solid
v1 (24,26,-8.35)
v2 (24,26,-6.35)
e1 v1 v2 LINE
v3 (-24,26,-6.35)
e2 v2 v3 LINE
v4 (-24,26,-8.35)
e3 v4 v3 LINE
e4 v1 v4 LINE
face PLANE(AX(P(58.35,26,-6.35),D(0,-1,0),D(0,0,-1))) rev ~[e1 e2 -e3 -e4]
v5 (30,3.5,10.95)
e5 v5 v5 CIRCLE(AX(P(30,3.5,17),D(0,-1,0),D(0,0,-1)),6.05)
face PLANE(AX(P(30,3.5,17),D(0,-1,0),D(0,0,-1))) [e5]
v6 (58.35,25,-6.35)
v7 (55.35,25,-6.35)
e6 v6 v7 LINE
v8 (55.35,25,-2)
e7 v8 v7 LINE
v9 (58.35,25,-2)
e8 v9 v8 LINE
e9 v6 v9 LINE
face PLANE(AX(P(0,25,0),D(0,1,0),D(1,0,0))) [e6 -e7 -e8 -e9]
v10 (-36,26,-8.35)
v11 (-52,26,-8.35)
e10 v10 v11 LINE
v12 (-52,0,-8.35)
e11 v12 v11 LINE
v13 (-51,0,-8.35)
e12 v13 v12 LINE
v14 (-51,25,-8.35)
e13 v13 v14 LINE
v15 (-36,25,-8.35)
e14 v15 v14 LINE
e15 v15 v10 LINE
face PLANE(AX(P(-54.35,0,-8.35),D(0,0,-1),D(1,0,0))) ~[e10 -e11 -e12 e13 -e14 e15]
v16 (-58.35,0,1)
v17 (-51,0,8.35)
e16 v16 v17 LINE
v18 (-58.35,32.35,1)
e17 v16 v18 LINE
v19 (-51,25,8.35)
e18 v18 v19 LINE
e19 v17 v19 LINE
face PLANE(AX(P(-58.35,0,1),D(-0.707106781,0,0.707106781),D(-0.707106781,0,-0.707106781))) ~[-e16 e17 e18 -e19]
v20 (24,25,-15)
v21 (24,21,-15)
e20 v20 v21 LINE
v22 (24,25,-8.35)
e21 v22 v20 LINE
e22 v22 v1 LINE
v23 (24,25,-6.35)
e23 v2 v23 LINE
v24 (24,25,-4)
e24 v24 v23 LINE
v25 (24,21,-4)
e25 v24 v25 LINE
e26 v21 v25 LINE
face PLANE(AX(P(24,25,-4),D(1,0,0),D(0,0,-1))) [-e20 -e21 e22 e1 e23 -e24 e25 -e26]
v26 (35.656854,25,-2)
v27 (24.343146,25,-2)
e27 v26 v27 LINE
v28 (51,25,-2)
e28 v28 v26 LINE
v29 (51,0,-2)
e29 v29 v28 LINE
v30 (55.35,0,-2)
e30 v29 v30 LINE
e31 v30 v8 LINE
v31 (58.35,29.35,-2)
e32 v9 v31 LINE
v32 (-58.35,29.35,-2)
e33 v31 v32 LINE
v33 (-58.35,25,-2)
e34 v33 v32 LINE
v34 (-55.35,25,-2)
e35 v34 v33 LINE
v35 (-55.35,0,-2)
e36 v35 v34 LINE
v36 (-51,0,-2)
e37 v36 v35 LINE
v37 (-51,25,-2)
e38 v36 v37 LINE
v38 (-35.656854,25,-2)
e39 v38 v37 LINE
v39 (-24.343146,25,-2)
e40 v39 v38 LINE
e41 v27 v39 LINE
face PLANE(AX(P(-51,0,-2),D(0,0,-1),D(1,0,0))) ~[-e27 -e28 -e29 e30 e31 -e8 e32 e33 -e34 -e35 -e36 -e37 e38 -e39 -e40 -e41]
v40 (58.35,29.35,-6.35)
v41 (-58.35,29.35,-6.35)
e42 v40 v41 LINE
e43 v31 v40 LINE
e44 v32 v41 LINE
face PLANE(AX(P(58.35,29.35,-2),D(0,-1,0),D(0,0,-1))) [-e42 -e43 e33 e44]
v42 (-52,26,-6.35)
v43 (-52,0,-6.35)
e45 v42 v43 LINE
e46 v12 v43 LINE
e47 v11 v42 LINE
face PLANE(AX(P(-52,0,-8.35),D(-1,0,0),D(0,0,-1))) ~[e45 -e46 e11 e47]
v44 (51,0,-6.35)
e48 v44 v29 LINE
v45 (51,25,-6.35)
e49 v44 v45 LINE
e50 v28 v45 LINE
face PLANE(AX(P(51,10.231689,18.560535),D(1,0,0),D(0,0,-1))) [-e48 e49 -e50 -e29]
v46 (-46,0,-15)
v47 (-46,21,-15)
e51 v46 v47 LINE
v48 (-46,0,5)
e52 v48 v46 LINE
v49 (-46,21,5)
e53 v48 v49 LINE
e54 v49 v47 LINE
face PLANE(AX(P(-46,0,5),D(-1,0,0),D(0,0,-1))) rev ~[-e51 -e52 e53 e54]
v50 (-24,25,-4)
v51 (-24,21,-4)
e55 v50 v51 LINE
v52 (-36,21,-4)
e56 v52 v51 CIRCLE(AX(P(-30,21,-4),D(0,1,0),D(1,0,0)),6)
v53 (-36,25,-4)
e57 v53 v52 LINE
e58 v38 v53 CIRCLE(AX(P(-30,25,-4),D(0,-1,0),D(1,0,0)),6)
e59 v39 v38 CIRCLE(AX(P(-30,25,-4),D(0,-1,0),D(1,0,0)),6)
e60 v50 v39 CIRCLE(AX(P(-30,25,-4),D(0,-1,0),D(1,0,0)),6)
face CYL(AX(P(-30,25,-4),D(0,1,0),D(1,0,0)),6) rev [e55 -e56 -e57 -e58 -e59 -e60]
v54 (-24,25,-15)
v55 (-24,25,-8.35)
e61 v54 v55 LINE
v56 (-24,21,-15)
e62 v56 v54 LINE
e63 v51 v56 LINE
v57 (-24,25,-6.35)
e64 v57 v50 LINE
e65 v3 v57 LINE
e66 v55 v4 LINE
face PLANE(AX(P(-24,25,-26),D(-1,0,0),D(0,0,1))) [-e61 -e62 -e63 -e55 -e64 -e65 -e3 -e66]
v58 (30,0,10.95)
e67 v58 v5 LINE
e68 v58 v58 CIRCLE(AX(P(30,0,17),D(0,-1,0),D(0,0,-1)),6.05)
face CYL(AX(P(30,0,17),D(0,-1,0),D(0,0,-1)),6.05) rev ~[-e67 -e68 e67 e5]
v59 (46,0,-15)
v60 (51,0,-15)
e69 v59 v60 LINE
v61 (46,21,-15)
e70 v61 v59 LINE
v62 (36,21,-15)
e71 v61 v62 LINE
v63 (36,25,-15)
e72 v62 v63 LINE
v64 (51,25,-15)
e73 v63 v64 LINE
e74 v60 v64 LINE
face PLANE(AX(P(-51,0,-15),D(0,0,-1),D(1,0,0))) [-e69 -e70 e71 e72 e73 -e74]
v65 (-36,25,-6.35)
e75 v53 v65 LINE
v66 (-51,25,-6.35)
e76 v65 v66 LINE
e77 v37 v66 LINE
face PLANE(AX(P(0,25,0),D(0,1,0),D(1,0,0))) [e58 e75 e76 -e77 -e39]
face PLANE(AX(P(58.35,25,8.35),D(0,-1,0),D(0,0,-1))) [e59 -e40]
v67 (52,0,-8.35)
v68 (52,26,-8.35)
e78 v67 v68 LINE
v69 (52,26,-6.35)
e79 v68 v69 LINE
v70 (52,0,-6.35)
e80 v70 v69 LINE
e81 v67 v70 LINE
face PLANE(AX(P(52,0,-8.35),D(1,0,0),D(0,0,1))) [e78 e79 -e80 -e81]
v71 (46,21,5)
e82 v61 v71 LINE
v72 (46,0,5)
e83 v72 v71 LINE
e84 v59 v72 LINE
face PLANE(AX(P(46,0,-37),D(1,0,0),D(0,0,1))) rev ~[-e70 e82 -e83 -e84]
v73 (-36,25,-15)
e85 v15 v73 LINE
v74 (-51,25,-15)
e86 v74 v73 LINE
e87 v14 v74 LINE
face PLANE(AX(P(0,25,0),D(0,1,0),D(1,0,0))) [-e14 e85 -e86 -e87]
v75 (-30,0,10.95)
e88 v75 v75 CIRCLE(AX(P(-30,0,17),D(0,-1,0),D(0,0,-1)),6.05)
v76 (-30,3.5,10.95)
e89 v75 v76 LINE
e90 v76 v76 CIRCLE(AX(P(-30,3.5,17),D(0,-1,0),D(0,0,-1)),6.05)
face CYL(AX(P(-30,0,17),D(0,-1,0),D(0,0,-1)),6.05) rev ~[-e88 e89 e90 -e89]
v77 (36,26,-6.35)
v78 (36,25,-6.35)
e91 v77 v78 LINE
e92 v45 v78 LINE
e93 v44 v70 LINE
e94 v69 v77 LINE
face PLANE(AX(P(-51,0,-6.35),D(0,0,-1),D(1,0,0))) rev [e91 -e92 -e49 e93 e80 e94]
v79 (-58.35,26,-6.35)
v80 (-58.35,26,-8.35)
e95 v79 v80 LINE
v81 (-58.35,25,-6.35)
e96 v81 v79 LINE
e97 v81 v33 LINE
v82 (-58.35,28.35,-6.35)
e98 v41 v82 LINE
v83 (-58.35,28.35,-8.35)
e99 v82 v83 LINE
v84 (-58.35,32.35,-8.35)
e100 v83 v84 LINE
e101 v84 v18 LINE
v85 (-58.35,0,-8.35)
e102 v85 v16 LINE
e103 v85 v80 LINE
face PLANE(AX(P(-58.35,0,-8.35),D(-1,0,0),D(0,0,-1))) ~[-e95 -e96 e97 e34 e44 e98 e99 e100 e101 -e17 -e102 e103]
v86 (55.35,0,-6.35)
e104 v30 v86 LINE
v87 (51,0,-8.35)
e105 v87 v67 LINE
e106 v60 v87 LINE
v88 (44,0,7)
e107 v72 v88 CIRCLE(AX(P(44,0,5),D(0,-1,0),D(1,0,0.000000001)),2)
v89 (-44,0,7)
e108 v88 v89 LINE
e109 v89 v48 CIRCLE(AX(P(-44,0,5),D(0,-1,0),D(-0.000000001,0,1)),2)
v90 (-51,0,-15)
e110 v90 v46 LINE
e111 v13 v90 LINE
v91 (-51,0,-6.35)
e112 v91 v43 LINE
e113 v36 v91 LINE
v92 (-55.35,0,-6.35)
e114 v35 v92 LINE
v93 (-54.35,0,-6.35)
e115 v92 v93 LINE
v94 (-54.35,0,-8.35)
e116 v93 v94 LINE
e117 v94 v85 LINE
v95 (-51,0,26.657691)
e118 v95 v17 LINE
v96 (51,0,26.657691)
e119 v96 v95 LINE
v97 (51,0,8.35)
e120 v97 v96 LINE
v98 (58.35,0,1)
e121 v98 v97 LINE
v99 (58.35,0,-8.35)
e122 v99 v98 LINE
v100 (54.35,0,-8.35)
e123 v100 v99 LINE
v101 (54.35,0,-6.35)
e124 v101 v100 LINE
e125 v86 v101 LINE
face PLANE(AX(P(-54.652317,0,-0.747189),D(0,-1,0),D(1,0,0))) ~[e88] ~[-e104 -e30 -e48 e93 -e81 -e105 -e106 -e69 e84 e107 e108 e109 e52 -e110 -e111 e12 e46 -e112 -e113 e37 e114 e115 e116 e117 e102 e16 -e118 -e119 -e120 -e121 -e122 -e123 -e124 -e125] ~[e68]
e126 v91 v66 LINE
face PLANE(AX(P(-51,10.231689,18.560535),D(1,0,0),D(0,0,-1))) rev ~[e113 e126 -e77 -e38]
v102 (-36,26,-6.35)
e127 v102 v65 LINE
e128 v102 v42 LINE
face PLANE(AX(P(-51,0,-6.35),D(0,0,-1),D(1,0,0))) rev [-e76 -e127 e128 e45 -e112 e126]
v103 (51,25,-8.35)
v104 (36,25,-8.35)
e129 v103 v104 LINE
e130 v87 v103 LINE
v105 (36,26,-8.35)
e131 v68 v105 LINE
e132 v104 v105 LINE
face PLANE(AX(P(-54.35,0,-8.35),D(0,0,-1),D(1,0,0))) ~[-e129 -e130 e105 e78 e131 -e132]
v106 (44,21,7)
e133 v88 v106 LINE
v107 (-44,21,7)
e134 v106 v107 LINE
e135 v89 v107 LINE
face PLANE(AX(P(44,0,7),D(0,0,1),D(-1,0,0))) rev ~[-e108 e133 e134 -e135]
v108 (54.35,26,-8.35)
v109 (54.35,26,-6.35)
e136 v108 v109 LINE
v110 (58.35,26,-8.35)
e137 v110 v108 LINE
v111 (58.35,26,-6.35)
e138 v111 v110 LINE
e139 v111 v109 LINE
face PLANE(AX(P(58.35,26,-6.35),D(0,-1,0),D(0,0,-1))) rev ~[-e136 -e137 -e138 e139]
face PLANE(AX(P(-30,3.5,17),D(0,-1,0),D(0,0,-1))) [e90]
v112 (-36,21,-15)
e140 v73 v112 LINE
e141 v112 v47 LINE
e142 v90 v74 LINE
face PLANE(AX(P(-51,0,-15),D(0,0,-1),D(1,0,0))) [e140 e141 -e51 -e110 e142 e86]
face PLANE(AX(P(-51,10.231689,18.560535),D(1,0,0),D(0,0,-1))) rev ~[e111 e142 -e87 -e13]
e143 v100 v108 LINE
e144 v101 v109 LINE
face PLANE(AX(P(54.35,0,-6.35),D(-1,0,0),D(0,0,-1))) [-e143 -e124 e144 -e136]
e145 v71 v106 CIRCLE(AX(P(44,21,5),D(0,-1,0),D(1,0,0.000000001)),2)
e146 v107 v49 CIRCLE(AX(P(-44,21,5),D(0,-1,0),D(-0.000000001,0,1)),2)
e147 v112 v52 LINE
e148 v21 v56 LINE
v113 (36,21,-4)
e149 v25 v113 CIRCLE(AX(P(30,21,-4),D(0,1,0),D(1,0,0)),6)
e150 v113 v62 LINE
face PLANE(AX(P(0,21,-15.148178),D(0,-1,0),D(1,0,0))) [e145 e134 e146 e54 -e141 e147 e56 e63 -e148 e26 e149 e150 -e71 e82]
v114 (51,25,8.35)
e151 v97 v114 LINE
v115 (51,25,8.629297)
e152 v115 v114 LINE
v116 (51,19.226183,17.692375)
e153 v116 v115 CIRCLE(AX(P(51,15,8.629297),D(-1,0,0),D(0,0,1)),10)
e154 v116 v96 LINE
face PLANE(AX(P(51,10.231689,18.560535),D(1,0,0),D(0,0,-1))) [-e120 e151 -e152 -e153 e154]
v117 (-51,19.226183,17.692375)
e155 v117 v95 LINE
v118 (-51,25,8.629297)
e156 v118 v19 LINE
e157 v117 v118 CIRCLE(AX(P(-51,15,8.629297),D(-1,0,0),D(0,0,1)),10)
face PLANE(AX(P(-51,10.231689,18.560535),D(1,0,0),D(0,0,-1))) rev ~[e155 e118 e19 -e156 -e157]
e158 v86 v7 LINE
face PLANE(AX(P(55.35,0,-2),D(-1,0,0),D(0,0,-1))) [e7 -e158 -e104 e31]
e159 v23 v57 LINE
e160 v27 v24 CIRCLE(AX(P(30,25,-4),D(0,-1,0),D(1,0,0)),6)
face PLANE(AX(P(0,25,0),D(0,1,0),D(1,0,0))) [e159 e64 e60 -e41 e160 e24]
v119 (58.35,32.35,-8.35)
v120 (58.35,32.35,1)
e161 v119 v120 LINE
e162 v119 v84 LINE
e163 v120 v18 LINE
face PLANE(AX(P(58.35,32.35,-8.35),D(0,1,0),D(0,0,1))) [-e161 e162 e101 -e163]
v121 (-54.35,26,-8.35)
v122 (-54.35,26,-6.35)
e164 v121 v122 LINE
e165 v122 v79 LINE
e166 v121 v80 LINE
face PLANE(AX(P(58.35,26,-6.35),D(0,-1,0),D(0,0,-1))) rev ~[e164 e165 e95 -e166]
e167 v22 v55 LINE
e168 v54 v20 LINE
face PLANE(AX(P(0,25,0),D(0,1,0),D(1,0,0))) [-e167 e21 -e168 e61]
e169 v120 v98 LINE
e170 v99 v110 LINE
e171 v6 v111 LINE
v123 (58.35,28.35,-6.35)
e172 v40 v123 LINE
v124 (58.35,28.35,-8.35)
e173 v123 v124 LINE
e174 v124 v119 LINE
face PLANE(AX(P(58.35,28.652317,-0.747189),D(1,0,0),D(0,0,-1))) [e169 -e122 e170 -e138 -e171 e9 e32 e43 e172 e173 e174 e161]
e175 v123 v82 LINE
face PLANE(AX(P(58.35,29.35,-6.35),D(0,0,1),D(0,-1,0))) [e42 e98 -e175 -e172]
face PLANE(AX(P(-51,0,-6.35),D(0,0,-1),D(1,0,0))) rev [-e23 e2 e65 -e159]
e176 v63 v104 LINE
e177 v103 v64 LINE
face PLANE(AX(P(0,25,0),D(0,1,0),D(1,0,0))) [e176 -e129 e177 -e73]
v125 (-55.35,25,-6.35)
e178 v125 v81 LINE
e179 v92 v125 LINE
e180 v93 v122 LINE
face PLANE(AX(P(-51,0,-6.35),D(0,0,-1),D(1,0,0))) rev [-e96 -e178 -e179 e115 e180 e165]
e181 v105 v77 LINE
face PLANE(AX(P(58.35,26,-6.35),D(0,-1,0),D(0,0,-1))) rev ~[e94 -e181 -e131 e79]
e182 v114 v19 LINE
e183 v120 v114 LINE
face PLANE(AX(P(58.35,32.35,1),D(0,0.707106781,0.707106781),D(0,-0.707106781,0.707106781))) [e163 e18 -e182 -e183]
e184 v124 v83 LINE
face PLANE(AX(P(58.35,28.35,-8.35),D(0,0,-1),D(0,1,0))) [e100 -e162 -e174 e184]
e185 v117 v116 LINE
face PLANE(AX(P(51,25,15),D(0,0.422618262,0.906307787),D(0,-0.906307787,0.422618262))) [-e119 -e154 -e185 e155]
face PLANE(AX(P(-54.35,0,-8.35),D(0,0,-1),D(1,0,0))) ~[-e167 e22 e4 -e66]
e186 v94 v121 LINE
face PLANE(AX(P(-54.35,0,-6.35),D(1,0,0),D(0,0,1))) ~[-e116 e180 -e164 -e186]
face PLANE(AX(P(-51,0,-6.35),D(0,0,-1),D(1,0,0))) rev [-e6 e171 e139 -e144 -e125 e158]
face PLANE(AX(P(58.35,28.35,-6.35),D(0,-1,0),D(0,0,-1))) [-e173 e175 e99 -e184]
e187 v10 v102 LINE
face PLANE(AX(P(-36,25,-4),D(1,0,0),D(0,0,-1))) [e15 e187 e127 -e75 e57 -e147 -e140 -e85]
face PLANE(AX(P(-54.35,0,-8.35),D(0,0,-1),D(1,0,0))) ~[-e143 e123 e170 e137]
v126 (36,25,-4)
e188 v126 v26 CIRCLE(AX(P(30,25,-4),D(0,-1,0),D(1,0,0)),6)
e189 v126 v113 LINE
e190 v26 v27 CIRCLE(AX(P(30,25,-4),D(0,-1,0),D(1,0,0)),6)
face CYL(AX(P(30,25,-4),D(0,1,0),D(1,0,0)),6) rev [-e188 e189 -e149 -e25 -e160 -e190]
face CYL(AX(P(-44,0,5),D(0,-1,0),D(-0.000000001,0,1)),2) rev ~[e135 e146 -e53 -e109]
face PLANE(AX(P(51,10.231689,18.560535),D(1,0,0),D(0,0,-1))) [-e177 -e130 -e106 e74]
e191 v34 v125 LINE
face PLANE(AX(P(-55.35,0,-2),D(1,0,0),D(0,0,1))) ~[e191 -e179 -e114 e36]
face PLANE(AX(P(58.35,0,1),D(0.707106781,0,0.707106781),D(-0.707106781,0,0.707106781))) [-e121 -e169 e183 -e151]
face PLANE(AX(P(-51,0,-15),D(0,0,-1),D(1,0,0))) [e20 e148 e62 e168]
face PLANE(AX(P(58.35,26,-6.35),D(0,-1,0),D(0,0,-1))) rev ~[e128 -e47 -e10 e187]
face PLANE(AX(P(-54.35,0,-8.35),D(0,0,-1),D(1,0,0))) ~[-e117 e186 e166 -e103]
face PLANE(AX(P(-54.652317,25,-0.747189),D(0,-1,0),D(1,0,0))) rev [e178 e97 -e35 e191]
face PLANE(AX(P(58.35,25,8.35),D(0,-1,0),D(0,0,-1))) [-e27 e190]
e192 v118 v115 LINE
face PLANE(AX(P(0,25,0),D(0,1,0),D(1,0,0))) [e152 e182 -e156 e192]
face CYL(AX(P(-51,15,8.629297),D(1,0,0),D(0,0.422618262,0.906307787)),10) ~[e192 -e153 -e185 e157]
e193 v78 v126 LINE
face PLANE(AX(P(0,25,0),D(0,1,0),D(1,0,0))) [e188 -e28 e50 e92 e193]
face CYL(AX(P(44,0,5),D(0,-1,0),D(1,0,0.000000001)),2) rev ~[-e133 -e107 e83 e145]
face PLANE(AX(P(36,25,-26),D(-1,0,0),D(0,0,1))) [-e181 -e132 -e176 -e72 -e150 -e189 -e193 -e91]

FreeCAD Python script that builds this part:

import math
import FreeCAD as App
import Part
import Sketcher
from FreeCAD import Vector
Q = App.Units.Quantity


def edges_at(feature, points):
    """Names of the edges that pass closest to the given points."""
    edges = feature.Shape.Edges
    near = lambda p: min(range(len(edges)), key=lambda i: edges[i].distToShape(Part.Vertex(*p))[0])
    return sorted({f"Edge{near(p) + 1}" for p in points})

doc = App.newDocument("Part")
body = doc.addObject("PartDesign::Body", "Body")

# Sketch on XZ plane
sketch1 = body.newObject("Sketcher::SketchObject", "Sketch")
sketch1.AttachmentSupport = (doc.getObject("XZ_Plane"), [""])
sketch1.MapMode = "FlatFace"
sketch1.addGeometry(Part.LineSegment(Vector(-51, -15, 0), Vector(-51, 15, 0)), False)
sketch1.addGeometry(Part.LineSegment(Vector(-51, 15, 0), Vector(51, 15, 0)), False)
sketch1.addGeometry(Part.LineSegment(Vector(51, 15, 0), Vector(51, -15, 0)), False)
sketch1.addGeometry(Part.LineSegment(Vector(51, -15, 0), Vector(-51, -15, 0)), False)
sketch1.addConstraint(Sketcher.Constraint("Coincident", 0, 2, 1, 1))
sketch1.addConstraint(Sketcher.Constraint("Coincident", 1, 2, 2, 1))
sketch1.addConstraint(Sketcher.Constraint("Coincident", 2, 2, 3, 1))
sketch1.addConstraint(Sketcher.Constraint("Coincident", 3, 2, 0, 1))
sketch1.addConstraint(Sketcher.Constraint("Vertical", 0))
sketch1.addConstraint(Sketcher.Constraint("Horizontal", 1))
sketch1.addConstraint(Sketcher.Constraint("Vertical", 2))
sketch1.addConstraint(Sketcher.Constraint("Horizontal", 3))
sketch1.addConstraint(Sketcher.Constraint("Symmetric", 0, 2, 2, 2, -1, 1))
sketch1.addConstraint(Sketcher.Constraint("DistanceX", 1, 1, 1, 2, Q("102 mm")))
sketch1.addConstraint(Sketcher.Constraint("DistanceY", 0, 1, 0, 2, Q("30 mm")))
pad1 = body.newObject("PartDesign::Pad", "Pad")
pad1.Profile = sketch1
pad1.Length = 25
pad1.Reversed = True

# Sketch on XZ plane
sketch2 = body.newObject("Sketcher::SketchObject", "Sketch001")
sketch2.AttachmentSupport = (doc.getObject("XZ_Plane"), [""])
sketch2.MapMode = "FlatFace"
sketch2.addGeometry(Part.LineSegment(Vector(-46, -37, 0), Vector(46, -37, 0)), False)
sketch2.addGeometry(Part.LineSegment(Vector(46, -37, 0), Vector(46, 5, 0)), False)
sketch2.addGeometry(Part.ArcOfCircle(Part.Circle(Vector(44, 5, 0), Vector(0, 0, 1), 2), math.radians(0), math.radians(90)), False)
sketch2.addGeometry(Part.LineSegment(Vector(44, 7, 0), Vector(-44, 7, 0)), False)
sketch2.addGeometry(Part.ArcOfCircle(Part.Circle(Vector(-44, 5, 0), Vector(0, 0, 1), 2), math.radians(90), math.radians(180)), False)
sketch2.addGeometry(Part.LineSegment(Vector(-46, 5, 0), Vector(-46, -37, 0)), False)
sketch2.addConstraint(Sketcher.Constraint("Coincident", 0, 2, 1, 1))
sketch2.addConstraint(Sketcher.Constraint("Tangent", 1, 2, 2, 1))
sketch2.addConstraint(Sketcher.Constraint("Tangent", 2, 2, 3, 1))
sketch2.addConstraint(Sketcher.Constraint("Tangent", 3, 2, 4, 1))
sketch2.addConstraint(Sketcher.Constraint("Tangent", 4, 2, 5, 1))
sketch2.addConstraint(Sketcher.Constraint("Coincident", 5, 2, 0, 1))
sketch2.addConstraint(Sketcher.Constraint("Horizontal", 0))
sketch2.addConstraint(Sketcher.Constraint("Vertical", 1))
sketch2.addConstraint(Sketcher.Constraint("Horizontal", 3))
sketch2.addConstraint(Sketcher.Constraint("Vertical", 5))
sketch2.addConstraint(Sketcher.Constraint("Equal", 2, 4))
sketch2.addConstraint(Sketcher.Constraint("Radius", 2, Q("2 mm")))
sketch2.addConstraint(Sketcher.Constraint("DistanceX", 0, 1, 0, 2, Q("92 mm")))
sketch2.addConstraint(Sketcher.Constraint("DistanceY", 1, 1, 1, 2, Q("42 mm")))
sketch2.addConstraint(Sketcher.Constraint("DistanceX", -1, 1, 2, 3, Q("44 mm")))
sketch2.addConstraint(Sketcher.Constraint("DistanceY", -1, 1, 2, 3, Q("5 mm")))
pocket1 = body.newObject("PartDesign::Pocket", "Pocket")
pocket1.Profile = sketch2
pocket1.Length = 21

# Sketch on YZ plane
sketch3 = body.newObject("Sketcher::SketchObject", "Sketch002")
sketch3.AttachmentSupport = (doc.getObject("YZ_Plane"), [""])
sketch3.MapMode = "FlatFace"
sketch3.AttachmentOffset = App.Placement(Vector(0, 0, 51), App.Rotation())
sketch3.addGeometry(Part.LineSegment(Vector(25, 15, 0), Vector(0, 27, 0)), False)
sketch3.addGeometry(Part.LineSegment(Vector(0, 27, 0), Vector(0, 15, 0)), False)
sketch3.addGeometry(Part.LineSegment(Vector(0, 15, 0), Vector(25, 15, 0)), False)
sketch3.addConstraint(Sketcher.Constraint("Coincident", 0, 2, 1, 1))
sketch3.addConstraint(Sketcher.Constraint("Coincident", 1, 2, 2, 1))
sketch3.addConstraint(Sketcher.Constraint("Coincident", 2, 2, 0, 1))
sketch3.addConstraint(Sketcher.Constraint("Vertical", 1))
sketch3.addConstraint(Sketcher.Constraint("Horizontal", 2))
sketch3.addConstraint(Sketcher.Constraint("PointOnObject", 0, 2, -2))
sketch3.addConstraint(Sketcher.Constraint("DistanceX", 2, 1, 2, 2, Q("25 mm")))
sketch3.addConstraint(Sketcher.Constraint("Angle", 0, Q("155 deg")))
sketch3.addConstraint(Sketcher.Constraint("DistanceY", -1, 1, 1, 2, Q("15 mm")))
pad2 = body.newObject("PartDesign::Pad", "Pad001")
pad2.Profile = sketch3
pad2.Length = 102
pad2.Reversed = True

# Sketch on XZ plane
sketch4 = body.newObject("Sketcher::SketchObject", "Sketch003")
sketch4.AttachmentSupport = (doc.getObject("XZ_Plane"), [""])
sketch4.MapMode = "FlatFace"
sketch4.addGeometry(Part.Circle(Vector(-30, 17, 0), Vector(0, 0, 1), 6), False)
sketch4.addGeometry(Part.Circle(Vector(30, 17, 0), Vector(0, 0, 1), 6), False)
sketch4.addConstraint(Sketcher.Constraint("Equal", 0, 1))
sketch4.addConstraint(Sketcher.Constraint("Symmetric", 0, 3, 1, 3, -2))
sketch4.addConstraint(Sketcher.Constraint("Diameter", 0, Q("12.1 mm")))
sketch4.addConstraint(Sketcher.Constraint("DistanceX", 0, 3, -1, 1, Q("30 mm")))
sketch4.addConstraint(Sketcher.Constraint("DistanceY", -1, 1, 0, 3, Q("17 mm")))
pocket2 = body.newObject("PartDesign::Pocket", "Pocket001")
pocket2.Profile = sketch4
pocket2.Length = 3.5
doc.recompute()

fillet = body.newObject("PartDesign::Fillet", "Fillet")
fillet.Base = (pocket2, edges_at(pocket2, [(0, 25, 15)]))
fillet.Radius = 10

# Sketch on XZ plane
sketch5 = body.newObject("Sketcher::SketchObject", "Sketch004")
sketch5.AttachmentSupport = (doc.getObject("XZ_Plane"), [""])
sketch5.MapMode = "FlatFace"
sketch5.AttachmentOffset = App.Placement(Vector(0, 0, -25), App.Rotation())
sketch5.addGeometry(Part.LineSegment(Vector(-24, -4, 0), Vector(-24, -26, 0)), False)
sketch5.addGeometry(Part.ArcOfCircle(Part.Circle(Vector(-30, -26, 0), Vector(0, 0, 1), 6), math.radians(180), math.radians(360)), False)
sketch5.addGeometry(Part.LineSegment(Vector(-36, -26, 0), Vector(-36, -4, 0)), False)
sketch5.addGeometry(Part.ArcOfCircle(Part.Circle(Vector(-30, -4, 0), Vector(0, 0, 1), 6), math.radians(0), math.radians(180)), False)
sketch5.addGeometry(Part.LineSegment(Vector(24, -26, 0), Vector(24, -4, 0)), False)
sketch5.addGeometry(Part.ArcOfCircle(Part.Circle(Vector(30, -4, 0), Vector(0, 0, 1), 6), math.radians(0), math.radians(180)), False)
sketch5.addGeometry(Part.LineSegment(Vector(36, -4, 0), Vector(36, -26, 0)), False)
sketch5.addGeometry(Part.ArcOfCircle(Part.Circle(Vector(30, -26, 0), Vector(0, 0, 1), 6), math.radians(180), math.radians(360)), False)
sketch5.addConstraint(Sketcher.Constraint("Tangent", 0, 2, 1, 2))
sketch5.addConstraint(Sketcher.Constraint("Tangent", 1, 1, 2, 1))
sketch5.addConstraint(Sketcher.Constraint("Tangent", 2, 2, 3, 2))
sketch5.addConstraint(Sketcher.Constraint("Tangent", 3, 1, 0, 1))
sketch5.addConstraint(Sketcher.Constraint("Tangent", 4, 2, 5, 2))
sketch5.addConstraint(Sketcher.Constraint("Tangent", 5, 1, 6, 1))
sketch5.addConstraint(Sketcher.Constraint("Tangent", 6, 2, 7, 2))
sketch5.addConstraint(Sketcher.Constraint("Tangent", 7, 1, 4, 1))
sketch5.addConstraint(Sketcher.Constraint("Vertical", 0))
sketch5.addConstraint(Sketcher.Constraint("Vertical", 2))
sketch5.addConstraint(Sketcher.Constraint("Vertical", 4))
sketch5.addConstraint(Sketcher.Constraint("Vertical", 6))
sketch5.addConstraint(Sketcher.Constraint("Equal", 3, 5))
sketch5.addConstraint(Sketcher.Constraint("Symmetric", 3, 3, 5, 3, -2))
sketch5.addConstraint(Sketcher.Constraint("Horizontal", 1, 3, 7, 3))
sketch5.addConstraint(Sketcher.Constraint("Radius", 1, Q("6 mm")))
sketch5.addConstraint(Sketcher.Constraint("DistanceY", 0, 2, 0, 1, Q("22 mm")))
sketch5.addConstraint(Sketcher.Constraint("DistanceX", 1, 3, -1, 1, Q("30 mm")))
sketch5.addConstraint(Sketcher.Constraint("DistanceY", 1, 3, -1, 1, Q("26 mm")))
pocket3 = body.newObject("PartDesign::Pocket", "Pocket002")
pocket3.Profile = sketch5
pocket3.Length = 23.5
pocket3.Reversed = True

# Sketch on XZ plane
sketch6 = body.newObject("Sketcher::SketchObject", "Sketch005")
sketch6.AttachmentSupport = (doc.getObject("XZ_Plane"), [""])
sketch6.MapMode = "FlatFace"
sketch6.addGeometry(Part.LineSegment(Vector(51, -2, 0), Vector(55.4, -2, 0)), False)
sketch6.addGeometry(Part.LineSegment(Vector(55.4, -2, 0), Vector(55.4, -6.3, 0)), False)
sketch6.addGeometry(Part.LineSegment(Vector(55.4, -6.3, 0), Vector(54.4, -6.3, 0)), False)
sketch6.addGeometry(Part.LineSegment(Vector(54.4, -6.3, 0), Vector(54.4, -8.3, 0)), False)
sketch6.addGeometry(Part.LineSegment(Vector(54.4, -8.3, 0), Vector(58.4, -8.3, 0)), False)
sketch6.addGeometry(Part.LineSegment(Vector(58.4, -8.3, 0), Vector(58.4, 1, 0)), False)
sketch6.addGeometry(Part.LineSegment(Vector(58.4, 1, 0), Vector(51, 8.3, 0)), False)
sketch6.addGeometry(Part.LineSegment(Vector(51, 8.3, 0), Vector(51, -2, 0)), False)
sketch6.addGeometry(Part.LineSegment(Vector(51, -6.3, 0), Vector(51, -8.3, 0)), False)
sketch6.addGeometry(Part.LineSegment(Vector(51, -8.3, 0), Vector(52, -8.3, 0)), False)
sketch6.addGeometry(Part.LineSegment(Vector(52, -8.3, 0), Vector(52, -6.3, 0)), False)
sketch6.addGeometry(Part.LineSegment(Vector(52, -6.3, 0), Vector(51, -6.3, 0)), False)
sketch6.addConstraint(Sketcher.Constraint("Coincident", 0, 2, 1, 1))
sketch6.addConstraint(Sketcher.Constraint("Coincident", 1, 2, 2, 1))
sketch6.addConstraint(Sketcher.Constraint("Coincident", 2, 2, 3, 1))
sketch6.addConstraint(Sketcher.Constraint("Coincident", 3, 2, 4, 1))
sketch6.addConstraint(Sketcher.Constraint("Coincident", 4, 2, 5, 1))
sketch6.addConstraint(Sketcher.Constraint("Coincident", 5, 2, 6, 1))
sketch6.addConstraint(Sketcher.Constraint("Coincident", 6, 2, 7, 1))
sketch6.addConstraint(Sketcher.Constraint("Coincident", 7, 2, 0, 1))
sketch6.addConstraint(Sketcher.Constraint("Coincident", 8, 2, 9, 1))
sketch6.addConstraint(Sketcher.Constraint("Coincident", 9, 2, 10, 1))
sketch6.addConstraint(Sketcher.Constraint("Coincident", 10, 2, 11, 1))
sketch6.addConstraint(Sketcher.Constraint("Coincident", 11, 2, 8, 1))
sketch6.addConstraint(Sketcher.Constraint("Horizontal", 0))
sketch6.addConstraint(Sketcher.Constraint("Vertical", 1))
sketch6.addConstraint(Sketcher.Constraint("Horizontal", 2))
sketch6.addConstraint(Sketcher.Constraint("Vertical", 3))
sketch6.addConstraint(Sketcher.Constraint("Horizontal", 4))
sketch6.addConstraint(Sketcher.Constraint("Vertical", 5))
sketch6.addConstraint(Sketcher.Constraint("Vertical", 7))
sketch6.addConstraint(Sketcher.Constraint("Vertical", 8))
sketch6.addConstraint(Sketcher.Constraint("Horizontal", 9))
sketch6.addConstraint(Sketcher.Constraint("Vertical", 10))
sketch6.addConstraint(Sketcher.Constraint("Horizontal", 11))
sketch6.addConstraint(Sketcher.Constraint("Symmetric", 6, 2, 8, 2, -1))
sketch6.addConstraint(Sketcher.Constraint("Horizontal", 4, 2, 8, 2))
sketch6.addConstraint(Sketcher.Constraint("Horizontal", 2, 2, 10, 2))
sketch6.addConstraint(Sketcher.Constraint("Equal", 2, 9))
sketch6.addConstraint(Sketcher.Constraint("Equal", 0, 1))
sketch6.addConstraint(Sketcher.Constraint("DistanceX", 2, 2, 2, 1, Q("1 mm")))
sketch6.addConstraint(Sketcher.Constraint("DistanceX", 4, 1, 4, 2, Q("4 mm")))
sketch6.addConstraint(Sketcher.Constraint("DistanceY", 3, 2, 3, 1, Q("2 mm")))
sketch6.addConstraint(Sketcher.Constraint("Angle", 6, Q("135 deg")))
sketch6.addConstraint(Sketcher.Constraint("DistanceY", 0, 2, -1, 1, Q("2 mm")))
sketch6.addConstraint(Sketcher.Constraint("DistanceX", -1, 1, 6, 2, Q("51 mm")))
sketch6.addConstraint(Sketcher.Constraint("DistanceX", 0, 1, 0, 2, Q("4.35 mm")))
pad3 = body.newObject("PartDesign::Pad", "Pad002")
pad3.Profile = sketch6
pad3.Length = 25
pad3.Reversed = True

# Sketch on YZ plane
sketch7 = body.newObject("Sketcher::SketchObject", "Sketch006")
sketch7.AttachmentSupport = (doc.getObject("YZ_Plane"), [""])
sketch7.MapMode = "FlatFace"
sketch7.AttachmentOffset = App.Placement(Vector(0, 0, 58.35), App.Rotation())
sketch7.addGeometry(Part.LineSegment(Vector(25, -2, 0), Vector(29.4, -2, 0)), False)
sketch7.addGeometry(Part.LineSegment(Vector(29.4, -2, 0), Vector(29.4, -6.3, 0)), False)
sketch7.addGeometry(Part.LineSegment(Vector(29.4, -6.3, 0), Vector(28.4, -6.3, 0)), False)
sketch7.addGeometry(Part.LineSegment(Vector(28.4, -6.3, 0), Vector(28.4, -8.3, 0)), False)
sketch7.addGeometry(Part.LineSegment(Vector(28.4, -8.3, 0), Vector(32.4, -8.3, 0)), False)
sketch7.addGeometry(Part.LineSegment(Vector(32.4, -8.3, 0), Vector(32.4, 1, 0)), False)
sketch7.addGeometry(Part.LineSegment(Vector(32.4, 1, 0), Vector(25, 8.3, 0)), False)
sketch7.addGeometry(Part.LineSegment(Vector(25, 8.3, 0), Vector(25, -2, 0)), False)
sketch7.addGeometry(Part.LineSegment(Vector(26, -6.3, 0), Vector(25, -6.3, 0)), False)
sketch7.addGeometry(Part.LineSegment(Vector(25, -6.3, 0), Vector(25, -8.3, 0)), False)
sketch7.addGeometry(Part.LineSegment(Vector(25, -8.3, 0), Vector(26, -8.3, 0)), False)
sketch7.addGeometry(Part.LineSegment(Vector(26, -8.3, 0), Vector(26, -6.3, 0)), False)
sketch7.addConstraint(Sketcher.Constraint("Coincident", 0, 2, 1, 1))
sketch7.addConstraint(Sketcher.Constraint("Coincident", 1, 2, 2, 1))
sketch7.addConstraint(Sketcher.Constraint("Coincident", 2, 2, 3, 1))
sketch7.addConstraint(Sketcher.Constraint("Coincident", 3, 2, 4, 1))
sketch7.addConstraint(Sketcher.Constraint("Coincident", 4, 2, 5, 1))
sketch7.addConstraint(Sketcher.Constraint("Coincident", 5, 2, 6, 1))
sketch7.addConstraint(Sketcher.Constraint("Coincident", 6, 2, 7, 1))
sketch7.addConstraint(Sketcher.Constraint("Coincident", 7, 2, 0, 1))
sketch7.addConstraint(Sketcher.Constraint("Coincident", 8, 2, 9, 1))
sketch7.addConstraint(Sketcher.Constraint("Coincident", 9, 2, 10, 1))
sketch7.addConstraint(Sketcher.Constraint("Coincident", 10, 2, 11, 1))
sketch7.addConstraint(Sketcher.Constraint("Coincident", 11, 2, 8, 1))
sketch7.addConstraint(Sketcher.Constraint("Horizontal", 0))
sketch7.addConstraint(Sketcher.Constraint("Vertical", 1))
sketch7.addConstraint(Sketcher.Constraint("Horizontal", 2))
sketch7.addConstraint(Sketcher.Constraint("Vertical", 3))
sketch7.addConstraint(Sketcher.Constraint("Horizontal", 4))
sketch7.addConstraint(Sketcher.Constraint("Vertical", 5))
sketch7.addConstraint(Sketcher.Constraint("Vertical", 7))
sketch7.addConstraint(Sketcher.Constraint("Horizontal", 8))
sketch7.addConstraint(Sketcher.Constraint("Vertical", 9))
sketch7.addConstraint(Sketcher.Constraint("Horizontal", 10))
sketch7.addConstraint(Sketcher.Constraint("Vertical", 11))
sketch7.addConstraint(Sketcher.Constraint("Symmetric", 6, 2, 9, 2, -1))
sketch7.addConstraint(Sketcher.Constraint("Horizontal", 2, 2, 8, 2))
sketch7.addConstraint(Sketcher.Constraint("Horizontal", 4, 2, 9, 2))
sketch7.addConstraint(Sketcher.Constraint("Equal", 2, 8))
sketch7.addConstraint(Sketcher.Constraint("Equal", 0, 1))
sketch7.addConstraint(Sketcher.Constraint("DistanceX", 2, 2, 2, 1, Q("1 mm")))
sketch7.addConstraint(Sketcher.Constraint("DistanceX", 4, 1, 4, 2, Q("4 mm")))
sketch7.addConstraint(Sketcher.Constraint("DistanceY", 3, 2, 3, 1, Q("2 mm")))
sketch7.addConstraint(Sketcher.Constraint("Angle", 6, Q("135 deg")))
sketch7.addConstraint(Sketcher.Constraint("DistanceY", 0, 2, -1, 1, Q("2 mm")))
sketch7.addConstraint(Sketcher.Constraint("DistanceX", -1, 1, 6, 2, Q("25 mm")))
sketch7.addConstraint(Sketcher.Constraint("DistanceX", 0, 1, 0, 2, Q("4.35 mm")))
pad4 = body.newObject("PartDesign::Pad", "Pad003")
pad4.Profile = sketch7
pad4.Length = 116.7
pad4.Reversed = True

# Sketch on XZ plane
sketch8 = body.newObject("Sketcher::SketchObject", "Sketch007")
sketch8.AttachmentSupport = (doc.getObject("XZ_Plane"), [""])
sketch8.MapMode = "FlatFace"
sketch8.AttachmentOffset = App.Placement(Vector(0, 0, -25), App.Rotation())
sketch8.addGeometry(Part.LineSegment(Vector(58, 8, 0), Vector(51, 8, 0)), False)
sketch8.addGeometry(Part.LineSegment(Vector(51, 8, 0), Vector(58, 1, 0)), False)
sketch8.addGeometry(Part.LineSegment(Vector(58, 1, 0), Vector(58, 8, 0)), False)
sketch8.addConstraint(Sketcher.Constraint("Coincident", 0, 2, 1, 1))
sketch8.addConstraint(Sketcher.Constraint("Coincident", 1, 2, 2, 1))
sketch8.addConstraint(Sketcher.Constraint("Coincident", 2, 2, 0, 1))
sketch8.addConstraint(Sketcher.Constraint("Horizontal", 0))
sketch8.addConstraint(Sketcher.Constraint("Vertical", 2))
sketch8.addConstraint(Sketcher.Constraint("Equal", 0, 2))
sketch8.addConstraint(Sketcher.Constraint("DistanceX", -1, 1, 0, 2, Q("51 mm")))
sketch8.addConstraint(Sketcher.Constraint("DistanceY", -1, 1, 1, 2, Q("1 mm")))
sketch8.addConstraint(Sketcher.Constraint("DistanceX", 0, 2, 0, 1, Q("7.35 mm")))
pocket4 = body.newObject("PartDesign::Pocket", "Pocket003")
pocket4.Profile = sketch8
pocket4.Length = 7.35
doc.recompute()

mirrored = body.newObject("PartDesign::Mirrored", "Mirrored")
mirrored.Originals = [pad3, pocket4]
mirrored.MirrorPlane = (doc.getObject("YZ_Plane"), [""])
body.Tip = mirrored

# Sketch on XY plane
sketch9 = body.newObject("Sketcher::SketchObject", "Sketch008")
sketch9.AttachmentSupport = (doc.getObject("XY_Plane"), [""])
sketch9.MapMode = "FlatFace"
sketch9.AttachmentOffset = App.Placement(Vector(0, 0, -8.35), App.Rotation())
sketch9.addGeometry(Part.LineSegment(Vector(54.4, 26, 0), Vector(54.4, 25, 0)), False)
sketch9.addGeometry(Part.LineSegment(Vector(54.4, 25, 0), Vector(52, 25, 0)), False)
sketch9.addGeometry(Part.LineSegment(Vector(52, 25, 0), Vector(52, 26, 0)), False)
sketch9.addGeometry(Part.LineSegment(Vector(52, 26, 0), Vector(54.4, 26, 0)), False)
sketch9.addGeometry(Part.LineSegment(Vector(36, 26, 0), Vector(36, 25, 0)), False)
sketch9.addGeometry(Part.LineSegment(Vector(36, 25, 0), Vector(24, 25, 0)), False)
sketch9.addGeometry(Part.LineSegment(Vector(24, 25, 0), Vector(24, 26, 0)), False)
sketch9.addGeometry(Part.LineSegment(Vector(24, 26, 0), Vector(36, 26, 0)), False)
sketch9.addGeometry(Part.LineSegment(Vector(-52, 26, 0), Vector(-52, 25, 0)), False)
sketch9.addGeometry(Part.LineSegment(Vector(-52, 25, 0), Vector(-54.4, 25, 0)), False)
sketch9.addGeometry(Part.LineSegment(Vector(-54.4, 25, 0), Vector(-54.4, 26, 0)), False)
sketch9.addGeometry(Part.LineSegment(Vector(-54.4, 26, 0), Vector(-52, 26, 0)), False)
sketch9.addGeometry(Part.LineSegment(Vector(-24, 26, 0), Vector(-24, 25, 0)), False)
sketch9.addGeometry(Part.LineSegment(Vector(-24, 25, 0), Vector(-36, 25, 0)), False)
sketch9.addGeometry(Part.LineSegment(Vector(-36, 25, 0), Vector(-36, 26, 0)), False)
sketch9.addGeometry(Part.LineSegment(Vector(-36, 26, 0), Vector(-24, 26, 0)), False)
sketch9.addConstraint(Sketcher.Constraint("Coincident", 0, 2, 1, 1))
sketch9.addConstraint(Sketcher.Constraint("Coincident", 1, 2, 2, 1))
sketch9.addConstraint(Sketcher.Constraint("Coincident", 2, 2, 3, 1))
sketch9.addConstraint(Sketcher.Constraint("Coincident", 3, 2, 0, 1))
sketch9.addConstraint(Sketcher.Constraint("Coincident", 4, 2, 5, 1))
sketch9.addConstraint(Sketcher.Constraint("Coincident", 5, 2, 6, 1))
sketch9.addConstraint(Sketcher.Constraint("Coincident", 6, 2, 7, 1))
sketch9.addConstraint(Sketcher.Constraint("Coincident", 7, 2, 4, 1))
sketch9.addConstraint(Sketcher.Constraint("Coincident", 8, 2, 9, 1))
sketch9.addConstraint(Sketcher.Constraint("Coincident", 9, 2, 10, 1))
sketch9.addConstraint(Sketcher.Constraint("Coincident", 10, 2, 11, 1))
sketch9.addConstraint(Sketcher.Constraint("Coincident", 11, 2, 8, 1))
sketch9.addConstraint(Sketcher.Constraint("Coincident", 12, 2, 13, 1))
sketch9.addConstraint(Sketcher.Constraint("Coincident", 13, 2, 14, 1))
sketch9.addConstraint(Sketcher.Constraint("Coincident", 14, 2, 15, 1))
sketch9.addConstraint(Sketcher.Constraint("Coincident", 15, 2, 12, 1))
sketch9.addConstraint(Sketcher.Constraint("Vertical", 0))
sketch9.addConstraint(Sketcher.Constraint("Horizontal", 1))
sketch9.addConstraint(Sketcher.Constraint("Vertical", 2))
sketch9.addConstraint(Sketcher.Constraint("Horizontal", 3))
sketch9.addConstraint(Sketcher.Constraint("Vertical", 4))
sketch9.addConstraint(Sketcher.Constraint("Horizontal", 5))
sketch9.addConstraint(Sketcher.Constraint("Vertical", 6))
sketch9.addConstraint(Sketcher.Constraint("Horizontal", 7))
sketch9.addConstraint(Sketcher.Constraint("Vertical", 8))
sketch9.addConstraint(Sketcher.Constraint("Horizontal", 9))
sketch9.addConstraint(Sketcher.Constraint("Vertical", 10))
sketch9.addConstraint(Sketcher.Constraint("Horizontal", 11))
sketch9.addConstraint(Sketcher.Constraint("Vertical", 12))
sketch9.addConstraint(Sketcher.Constraint("Horizontal", 13))
sketch9.addConstraint(Sketcher.Constraint("Vertical", 14))
sketch9.addConstraint(Sketcher.Constraint("Horizontal", 15))
sketch9.addConstraint(Sketcher.Constraint("Symmetric", 1, 2, 8, 2, -2))
sketch9.addConstraint(Sketcher.Constraint("Symmetric", 3, 2, 10, 2, -2))
sketch9.addConstraint(Sketcher.Constraint("Symmetric", 5, 2, 12, 2, -2))
sketch9.addConstraint(Sketcher.Constraint("Symmetric", 7, 2, 14, 2, -2))
sketch9.addConstraint(Sketcher.Constraint("Horizontal", 1, 2, 4, 2))
sketch9.addConstraint(Sketcher.Constraint("Horizontal", 3, 2, 6, 2))
sketch9.addConstraint(Sketcher.Constraint("DistanceX", 5, 2, 5, 1, Q("12 mm")))
sketch9.addConstraint(Sketcher.Constraint("DistanceY", 0, 2, 0, 1, Q("1 mm")))
sketch9.addConstraint(Sketcher.Constraint("DistanceY", -1, 1, 0, 2, Q("25 mm")))
sketch9.addConstraint(Sketcher.Constraint("DistanceX", -1, 1, 1, 2, Q("52 mm")))
sketch9.addConstraint(Sketcher.Constraint("DistanceX", -1, 1, 4, 2, Q("36 mm")))
sketch9.addConstraint(Sketcher.Constraint("DistanceX", 1, 2, 1, 1, Q("2.35 mm")))
pocket5 = body.newObject("PartDesign::Pocket", "Pocket004")
pocket5.Profile = sketch9
pocket5.Length = 3
pocket5.Reversed = True

doc.recompute()
